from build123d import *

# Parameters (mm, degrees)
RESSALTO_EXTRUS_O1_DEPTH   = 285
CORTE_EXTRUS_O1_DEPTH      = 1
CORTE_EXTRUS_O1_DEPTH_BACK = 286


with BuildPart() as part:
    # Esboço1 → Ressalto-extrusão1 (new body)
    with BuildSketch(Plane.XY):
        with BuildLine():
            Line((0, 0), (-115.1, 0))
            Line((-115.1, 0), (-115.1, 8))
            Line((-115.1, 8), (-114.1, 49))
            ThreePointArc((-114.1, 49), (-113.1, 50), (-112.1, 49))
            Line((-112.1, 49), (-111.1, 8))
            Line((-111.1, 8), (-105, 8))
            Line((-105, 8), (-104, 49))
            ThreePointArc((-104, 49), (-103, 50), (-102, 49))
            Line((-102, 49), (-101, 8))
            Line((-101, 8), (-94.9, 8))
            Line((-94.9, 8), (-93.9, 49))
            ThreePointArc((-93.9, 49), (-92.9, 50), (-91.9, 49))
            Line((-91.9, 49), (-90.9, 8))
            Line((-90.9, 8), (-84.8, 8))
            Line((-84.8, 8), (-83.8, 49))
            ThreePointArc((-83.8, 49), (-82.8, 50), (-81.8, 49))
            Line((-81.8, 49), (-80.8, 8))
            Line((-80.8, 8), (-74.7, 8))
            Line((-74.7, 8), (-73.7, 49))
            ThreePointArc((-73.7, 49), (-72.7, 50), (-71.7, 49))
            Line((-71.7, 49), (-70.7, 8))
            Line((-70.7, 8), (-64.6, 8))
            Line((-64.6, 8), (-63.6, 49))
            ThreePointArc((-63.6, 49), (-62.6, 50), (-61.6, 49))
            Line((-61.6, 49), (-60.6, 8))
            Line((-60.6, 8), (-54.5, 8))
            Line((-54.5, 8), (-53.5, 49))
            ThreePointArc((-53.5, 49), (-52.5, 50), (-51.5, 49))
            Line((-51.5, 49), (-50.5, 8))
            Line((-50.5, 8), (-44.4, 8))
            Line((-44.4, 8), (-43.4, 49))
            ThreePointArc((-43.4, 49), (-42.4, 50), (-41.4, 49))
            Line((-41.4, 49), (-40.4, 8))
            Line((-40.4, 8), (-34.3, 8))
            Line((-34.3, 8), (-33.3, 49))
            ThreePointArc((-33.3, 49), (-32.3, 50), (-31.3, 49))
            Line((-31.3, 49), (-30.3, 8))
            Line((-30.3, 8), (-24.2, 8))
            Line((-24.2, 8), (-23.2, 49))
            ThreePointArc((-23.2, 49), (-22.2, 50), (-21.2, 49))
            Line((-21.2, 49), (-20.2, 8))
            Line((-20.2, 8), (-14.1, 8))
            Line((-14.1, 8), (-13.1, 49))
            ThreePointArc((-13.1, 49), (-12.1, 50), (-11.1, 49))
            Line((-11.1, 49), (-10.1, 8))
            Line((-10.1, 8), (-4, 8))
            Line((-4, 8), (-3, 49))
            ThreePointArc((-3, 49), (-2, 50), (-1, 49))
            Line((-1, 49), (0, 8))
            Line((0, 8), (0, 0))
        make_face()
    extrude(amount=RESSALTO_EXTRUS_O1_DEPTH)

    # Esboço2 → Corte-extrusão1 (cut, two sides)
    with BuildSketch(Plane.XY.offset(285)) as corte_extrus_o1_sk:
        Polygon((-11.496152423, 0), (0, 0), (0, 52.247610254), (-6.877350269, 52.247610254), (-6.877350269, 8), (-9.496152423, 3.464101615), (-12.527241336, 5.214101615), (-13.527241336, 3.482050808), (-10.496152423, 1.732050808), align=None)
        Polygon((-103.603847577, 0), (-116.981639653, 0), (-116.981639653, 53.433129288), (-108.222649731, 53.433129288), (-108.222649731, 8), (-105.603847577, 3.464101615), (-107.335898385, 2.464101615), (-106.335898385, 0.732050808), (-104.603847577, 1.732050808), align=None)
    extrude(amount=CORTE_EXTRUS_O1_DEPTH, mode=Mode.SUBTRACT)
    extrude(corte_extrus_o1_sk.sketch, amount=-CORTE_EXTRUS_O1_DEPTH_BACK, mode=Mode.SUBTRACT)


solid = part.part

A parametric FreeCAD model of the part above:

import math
import FreeCAD as App
import Part
import Sketcher
from FreeCAD import Vector
Q = App.Units.Quantity


def add_polygon(sketch, points):
    """Adds a closed chain of lines whose ends are joined by coincident constraints."""
    first, n = sketch.GeometryCount, len(points)
    for a, b in zip(points, points[1:] + points[:1]):
        sketch.addGeometry(Part.LineSegment(App.Vector(*a, 0), App.Vector(*b, 0)), False)
    for i in range(n):
        sketch.addConstraint(Sketcher.Constraint("Coincident", first + i, 2, first + (i + 1) % n, 1))

doc = App.newDocument("Part")
body = doc.addObject("PartDesign::Body", "Body")

sketch1 = body.newObject("Sketcher::SketchObject", "Sketch")
sketch1.AttachmentSupport = (doc.getObject("XY_Plane"), [""])
sketch1.MapMode = "FlatFace"
sketch1.addGeometry([
    Part.LineSegment(Vector(-115.1, 0, 0), Vector(0, 0, 0)),
    Part.LineSegment(Vector(0, 0, 0), Vector(0, 8, 0)),
    Part.LineSegment(Vector(0, 8, 0), Vector(-1, 49, 0)),
    Part.ArcOfCircle(Part.Circle(Vector(-2, 49, 0), Vector(0, 0, 1), 1), math.radians(0), math.radians(180)),
    Part.LineSegment(Vector(-3, 49, 0), Vector(-4, 8, 0)),
    Part.LineSegment(Vector(-4, 8, 0), Vector(-10.1, 8, 0)),
    Part.LineSegment(Vector(-10.1, 8, 0), Vector(-11.1, 49, 0)),
    Part.ArcOfCircle(Part.Circle(Vector(-12.1, 49, 0), Vector(0, 0, 1), 1), math.radians(0), math.radians(180)),
    Part.LineSegment(Vector(-13.1, 49, 0), Vector(-14.1, 8, 0)),
    Part.LineSegment(Vector(-14.1, 8, 0), Vector(-20.2, 8, 0)),
    Part.LineSegment(Vector(-20.2, 8, 0), Vector(-21.2, 49, 0)),
    Part.ArcOfCircle(Part.Circle(Vector(-22.2, 49, 0), Vector(0, 0, 1), 1), math.radians(0), math.radians(180)),
    Part.LineSegment(Vector(-23.2, 49, 0), Vector(-24.2, 8, 0)),
    Part.LineSegment(Vector(-24.2, 8, 0), Vector(-30.3, 8, 0)),
    Part.LineSegment(Vector(-30.3, 8, 0), Vector(-31.3, 49, 0)),
    Part.ArcOfCircle(Part.Circle(Vector(-32.3, 49, 0), Vector(0, 0, 1), 1), math.radians(0), math.radians(180)),
    Part.LineSegment(Vector(-33.3, 49, 0), Vector(-34.3, 8, 0)),
    Part.LineSegment(Vector(-34.3, 8, 0), Vector(-40.4, 8, 0)),
    Part.LineSegment(Vector(-40.4, 8, 0), Vector(-41.4, 49, 0)),
    Part.ArcOfCircle(Part.Circle(Vector(-42.4, 49, 0), Vector(0, 0, 1), 1), math.radians(0), math.radians(180)),
    Part.LineSegment(Vector(-43.4, 49, 0), Vector(-44.4, 8, 0)),
    Part.LineSegment(Vector(-44.4, 8, 0), Vector(-50.5, 8, 0)),
    Part.LineSegment(Vector(-50.5, 8, 0), Vector(-51.5, 49, 0)),
    Part.ArcOfCircle(Part.Circle(Vector(-52.5, 49, 0), Vector(0, 0, 1), 1), math.radians(0), math.radians(180)),
    Part.LineSegment(Vector(-53.5, 49, 0), Vector(-54.5, 8, 0)),
    Part.LineSegment(Vector(-54.5, 8, 0), Vector(-60.6, 8, 0)),
    Part.LineSegment(Vector(-60.6, 8, 0), Vector(-61.6, 49, 0)),
    Part.ArcOfCircle(Part.Circle(Vector(-62.6, 49, 0), Vector(0, 0, 1), 1), math.radians(0), math.radians(180)),
    Part.LineSegment(Vector(-63.6, 49, 0), Vector(-64.6, 8, 0)),
    Part.LineSegment(Vector(-64.6, 8, 0), Vector(-70.7, 8, 0)),
    Part.LineSegment(Vector(-70.7, 8, 0), Vector(-71.7, 49, 0)),
    Part.ArcOfCircle(Part.Circle(Vector(-72.7, 49, 0), Vector(0, 0, 1), 1), math.radians(0), math.radians(180)),
    Part.LineSegment(Vector(-73.7, 49, 0), Vector(-74.7, 8, 0)),
    Part.LineSegment(Vector(-74.7, 8, 0), Vector(-80.8, 8, 0)),
    Part.LineSegment(Vector(-80.8, 8, 0), Vector(-81.8, 49, 0)),
    Part.ArcOfCircle(Part.Circle(Vector(-82.8, 49, 0), Vector(0, 0, 1), 1), math.radians(0), math.radians(180)),
    Part.LineSegment(Vector(-83.8, 49, 0), Vector(-84.8, 8, 0)),
    Part.LineSegment(Vector(-84.8, 8, 0), Vector(-90.9, 8, 0)),
    Part.LineSegment(Vector(-90.9, 8, 0), Vector(-91.9, 49, 0)),
    Part.ArcOfCircle(Part.Circle(Vector(-92.9, 49, 0), Vector(0, 0, 1), 1), math.radians(0), math.radians(180)),
    Part.LineSegment(Vector(-93.9, 49, 0), Vector(-94.9, 8, 0)),
    Part.LineSegment(Vector(-94.9, 8, 0), Vector(-101, 8, 0)),
    Part.LineSegment(Vector(-101, 8, 0), Vector(-102, 49, 0)),
    Part.ArcOfCircle(Part.Circle(Vector(-103, 49, 0), Vector(0, 0, 1), 1), math.radians(0), math.radians(180)),
    Part.LineSegment(Vector(-104, 49, 0), Vector(-105, 8, 0)),
    Part.LineSegment(Vector(-105, 8, 0), Vector(-111.1, 8, 0)),
    Part.LineSegment(Vector(-111.1, 8, 0), Vector(-112.1, 49, 0)),
    Part.ArcOfCircle(Part.Circle(Vector(-113.1, 49, 0), Vector(0, 0, 1), 1), math.radians(0), math.radians(180)),
    Part.LineSegment(Vector(-114.1, 49, 0), Vector(-115.1, 8, 0)),
    Part.LineSegment(Vector(-115.1, 8, 0), Vector(-115.1, 0, 0)),
], False)
sketch1.addConstraint([
    Sketcher.Constraint("Coincident", 0, 2, 1, 1),
    Sketcher.Constraint("Coincident", 1, 2, 2, 1),
    Sketcher.Constraint("Coincident", 2, 2, 3, 1),
    Sketcher.Constraint("Coincident", 3, 2, 4, 1),
    Sketcher.Constraint("Coincident", 4, 2, 5, 1),
    Sketcher.Constraint("Coincident", 5, 2, 6, 1),
    Sketcher.Constraint("Coincident", 6, 2, 7, 1),
    Sketcher.Constraint("Coincident", 7, 2, 8, 1),
    Sketcher.Constraint("Coincident", 8, 2, 9, 1),
    Sketcher.Constraint("Coincident", 9, 2, 10, 1),
    Sketcher.Constraint("Coincident", 10, 2, 11, 1),
    Sketcher.Constraint("Coincident", 11, 2, 12, 1),
    Sketcher.Constraint("Coincident", 12, 2, 13, 1),
    Sketcher.Constraint("Coincident", 13, 2, 14, 1),
    Sketcher.Constraint("Coincident", 14, 2, 15, 1),
    Sketcher.Constraint("Coincident", 15, 2, 16, 1),
    Sketcher.Constraint("Coincident", 16, 2, 17, 1),
    Sketcher.Constraint("Coincident", 17, 2, 18, 1),
    Sketcher.Constraint("Coincident", 18, 2, 19, 1),
    Sketcher.Constraint("Coincident", 19, 2, 20, 1),
    Sketcher.Constraint("Coincident", 20, 2, 21, 1),
    Sketcher.Constraint("Coincident", 21, 2, 22, 1),
    Sketcher.Constraint("Coincident", 22, 2, 23, 1),
    Sketcher.Constraint("Coincident", 23, 2, 24, 1),
    Sketcher.Constraint("Coincident", 24, 2, 25, 1),
    Sketcher.Constraint("Coincident", 25, 2, 26, 1),
    Sketcher.Constraint("Coincident", 26, 2, 27, 1),
    Sketcher.Constraint("Coincident", 27, 2, 28, 1),
    Sketcher.Constraint("Coincident", 28, 2, 29, 1),
    Sketcher.Constraint("Coincident", 29, 2, 30, 1),
    Sketcher.Constraint("Coincident", 30, 2, 31, 1),
    Sketcher.Constraint("Coincident", 31, 2, 32, 1),
    Sketcher.Constraint("Coincident", 32, 2, 33, 1),
    Sketcher.Constraint("Coincident", 33, 2, 34, 1),
    Sketcher.Constraint("Coincident", 34, 2, 35, 1),
    Sketcher.Constraint("Coincident", 35, 2, 36, 1),
    Sketcher.Constraint("Coincident", 36, 2, 37, 1),
    Sketcher.Constraint("Coincident", 37, 2, 38, 1),
    Sketcher.Constraint("Coincident", 38, 2, 39, 1),
    Sketcher.Constraint("Coincident", 39, 2, 40, 1),
    Sketcher.Constraint("Coincident", 40, 2, 41, 1),
    Sketcher.Constraint("Coincident", 41, 2, 42, 1),
    Sketcher.Constraint("Coincident", 42, 2, 43, 1),
    Sketcher.Constraint("Coincident", 43, 2, 44, 1),
    Sketcher.Constraint("Coincident", 44, 2, 45, 1),
    Sketcher.Constraint("Coincident", 45, 2, 46, 1),
    Sketcher.Constraint("Coincident", 46, 2, 47, 1),
    Sketcher.Constraint("Coincident", 47, 2, 48, 1),
    Sketcher.Constraint("Coincident", 48, 2, 49, 1),
    Sketcher.Constraint("Coincident", 49, 2, 0, 1),
    Sketcher.Constraint("Horizontal", 0),
    Sketcher.Constraint("Vertical", 1),
    Sketcher.Constraint("Horizontal", 5),
    Sketcher.Constraint("Horizontal", 9),
    Sketcher.Constraint("Horizontal", 13),
    Sketcher.Constraint("Horizontal", 17),
    Sketcher.Constraint("Horizontal", 21),
    Sketcher.Constraint("Horizontal", 25),
    Sketcher.Constraint("Horizontal", 29),
    Sketcher.Constraint("Horizontal", 33),
    Sketcher.Constraint("Horizontal", 37),
    Sketcher.Constraint("Horizontal", 41),
    Sketcher.Constraint("Horizontal", 45),
    Sketcher.Constraint("Vertical", 49),
    Sketcher.Constraint("Coincident", 0, 2, -1, 1),
    Sketcher.Constraint("Equal", 3, 7),
    Sketcher.Constraint("Equal", 7, 11),
    Sketcher.Constraint("Equal", 11, 15),
    Sketcher.Constraint("Equal", 15, 19),
    Sketcher.Constraint("Equal", 19, 23),
    Sketcher.Constraint("Equal", 23, 27),
    Sketcher.Constraint("Equal", 27, 31),
    Sketcher.Constraint("Equal", 31, 35),
    Sketcher.Constraint("Equal", 35, 39),
    Sketcher.Constraint("Equal", 39, 43),
    Sketcher.Constraint("Equal", 43, 47),
    Sketcher.Constraint("Parallel", 2, 6),
    Sketcher.Constraint("Parallel", 4, 8),
    Sketcher.Constraint("Parallel", 6, 10),
    Sketcher.Constraint("Parallel", 8, 12),
    Sketcher.Constraint("Parallel", 10, 14),
    Sketcher.Constraint("Parallel", 12, 16),
    Sketcher.Constraint("Parallel", 14, 18),
    Sketcher.Constraint("Parallel", 16, 20),
    Sketcher.Constraint("Parallel", 18, 22),
    Sketcher.Constraint("Parallel", 20, 24),
    Sketcher.Constraint("Parallel", 22, 26),
    Sketcher.Constraint("Parallel", 24, 28),
    Sketcher.Constraint("Parallel", 26, 30),
    Sketcher.Constraint("Parallel", 28, 32),
    Sketcher.Constraint("Parallel", 30, 34),
    Sketcher.Constraint("Parallel", 32, 36),
    Sketcher.Constraint("Parallel", 34, 38),
    Sketcher.Constraint("Parallel", 36, 40),
    Sketcher.Constraint("Parallel", 38, 42),
    Sketcher.Constraint("Parallel", 40, 44),
    Sketcher.Constraint("Parallel", 42, 46),
    Sketcher.Constraint("Parallel", 44, 48),
    Sketcher.Constraint("Horizontal", 3, 3, 7, 3),
    Sketcher.Constraint("Horizontal", 7, 3, 11, 3),
    Sketcher.Constraint("Horizontal", 11, 3, 15, 3),
    Sketcher.Constraint("Horizontal", 15, 3, 19, 3),
    Sketcher.Constraint("Horizontal", 19, 3, 23, 3),
    Sketcher.Constraint("Horizontal", 23, 3, 27, 3),
    Sketcher.Constraint("Horizontal", 27, 3, 31, 3),
    Sketcher.Constraint("Horizontal", 31, 3, 35, 3),
    Sketcher.Constraint("Horizontal", 35, 3, 39, 3),
    Sketcher.Constraint("Horizontal", 39, 3, 43, 3),
    Sketcher.Constraint("Horizontal", 43, 3, 47, 3),
    Sketcher.Constraint("Horizontal", 47, 3, 2, 2),
    Sketcher.Constraint("Horizontal", 2, 2, 3, 2),
    Sketcher.Constraint("Horizontal", 1, 2, 4, 2),
    Sketcher.Constraint("Horizontal", 3, 2, 6, 2),
    Sketcher.Constraint("Horizontal", 6, 2, 7, 2),
    Sketcher.Constraint("Horizontal", 5, 2, 8, 2),
    Sketcher.Constraint("Horizontal", 7, 2, 10, 2),
    Sketcher.Constraint("Horizontal", 10, 2, 11, 2),
    Sketcher.Constraint("Horizontal", 9, 2, 12, 2),
    Sketcher.Constraint("Horizontal", 11, 2, 14, 2),
    Sketcher.Constraint("Horizontal", 14, 2, 15, 2),
    Sketcher.Constraint("Horizontal", 13, 2, 16, 2),
    Sketcher.Constraint("Horizontal", 15, 2, 18, 2),
    Sketcher.Constraint("Horizontal", 18, 2, 19, 2),
    Sketcher.Constraint("Horizontal", 17, 2, 20, 2),
    Sketcher.Constraint("Horizontal", 19, 2, 22, 2),
    Sketcher.Constraint("Horizontal", 22, 2, 23, 2),
    Sketcher.Constraint("Horizontal", 21, 2, 24, 2),
    Sketcher.Constraint("Horizontal", 23, 2, 26, 2),
    Sketcher.Constraint("Horizontal", 26, 2, 27, 2),
    Sketcher.Constraint("Horizontal", 25, 2, 28, 2),
    Sketcher.Constraint("Horizontal", 27, 2, 30, 2),
    Sketcher.Constraint("Horizontal", 30, 2, 31, 2),
    Sketcher.Constraint("Horizontal", 29, 2, 32, 2),
    Sketcher.Constraint("Horizontal", 31, 2, 34, 2),
    Sketcher.Constraint("Horizontal", 34, 2, 35, 2),
    Sketcher.Constraint("Horizontal", 33, 2, 36, 2),
    Sketcher.Constraint("Horizontal", 35, 2, 38, 2),
    Sketcher.Constraint("Horizontal", 38, 2, 39, 2),
    Sketcher.Constraint("Horizontal", 37, 2, 40, 2),
    Sketcher.Constraint("Horizontal", 39, 2, 42, 2),
    Sketcher.Constraint("Horizontal", 42, 2, 43, 2),
    Sketcher.Constraint("Horizontal", 41, 2, 44, 2),
    Sketcher.Constraint("Horizontal", 43, 2, 46, 2),
    Sketcher.Constraint("Horizontal", 46, 2, 47, 2),
    Sketcher.Constraint("Horizontal", 45, 2, 48, 2),
    Sketcher.Constraint("Equal", 5, 9),
    Sketcher.Constraint("Equal", 9, 13),
    Sketcher.Constraint("Equal", 13, 17),
    Sketcher.Constraint("Equal", 17, 21),
    Sketcher.Constraint("Equal", 21, 25),
    Sketcher.Constraint("Equal", 25, 29),
    Sketcher.Constraint("Equal", 29, 33),
    Sketcher.Constraint("Equal", 33, 37),
    Sketcher.Constraint("Equal", 37, 41),
    Sketcher.Constraint("Equal", 41, 45),
    Sketcher.Constraint("Equal", 2, 4),
    Sketcher.Constraint("Radius", 3, Q("1 mm")),
    Sketcher.Constraint("DistanceY", 1, 1, 1, 2, Q("8 mm")),
    Sketcher.Constraint("DistanceX", 0, 1, 0, 2, Q("115.1 mm")),
    Sketcher.Constraint("DistanceX", 5, 2, 5, 1, Q("6.1 mm")),
    Sketcher.Constraint("DistanceY", -1, 1, 3, 3, Q("49 mm")),
])
pad1 = body.newObject("PartDesign::Pad", "Pad")
pad1.Profile = sketch1
pad1.Length = 285

sketch2 = body.newObject("Sketcher::SketchObject", "Sketch001")
sketch2.AttachmentSupport = (doc.getObject("XY_Plane"), [""])
sketch2.MapMode = "FlatFace"
sketch2.AttachmentOffset = App.Placement(Vector(0, 0, 285), App.Rotation())
add_polygon(sketch2, [(-11.5, 0), (0, 0), (0, 52.2), (-6.9, 52.2), (-6.9, 8), (-9.5, 3.5), (-12.5, 5.2), (-13.5, 3.5), (-10.5, 1.7)])
add_polygon(sketch2, [(-117, 0), (-103.6, 0), (-104.6, 1.7), (-106.3, 0.7), (-107.3, 2.5), (-105.6, 3.5), (-108.2, 8), (-108.2, 53.4), (-117, 53.4)])
sketch2.addConstraint([
    Sketcher.Constraint("Horizontal", 0),
    Sketcher.Constraint("Vertical", 1),
    Sketcher.Constraint("Horizontal", 2),
    Sketcher.Constraint("Vertical", 3),
    Sketcher.Constraint("Horizontal", 9),
    Sketcher.Constraint("Vertical", 15),
    Sketcher.Constraint("Horizontal", 16),
    Sketcher.Constraint("Vertical", 17),
    Sketcher.Constraint("Coincident", 0, 2, -1, 1),
    Sketcher.Constraint("PointOnObject", 9, 2, -1),
    Sketcher.Constraint("Perpendicular", 4, 5),
    Sketcher.Constraint("Perpendicular", 5, 6),
    Sketcher.Constraint("Perpendicular", 6, 7),
    Sketcher.Constraint("Perpendicular", 7, 8),
    Sketcher.Constraint("Perpendicular", 10, 11),
    Sketcher.Constraint("Perpendicular", 11, 12),
    Sketcher.Constraint("Perpendicular", 12, 13),
    Sketcher.Constraint("Perpendicular", 13, 14),
    Sketcher.Constraint("Horizontal", 7, 2, 10, 2),
    Sketcher.Constraint("Horizontal", 4, 2, 13, 2),
    Sketcher.Constraint("Horizontal", 3, 2, 14, 2),
    Sketcher.Constraint("Equal", 5, 7),
    Sketcher.Constraint("Equal", 6, 8),
    Sketcher.Constraint("Equal", 8, 10),
    Sketcher.Constraint("Equal", 10, 11),
    Sketcher.Constraint("Equal", 11, 12),
    Sketcher.Constraint("Angle", 4, Q("-120 deg")),
    Sketcher.Constraint("Distance", 6, Q("2 mm")),
    Sketcher.Constraint("DistanceY", -1, 1, 3, 2, Q("8 mm")),
    Sketcher.Constraint("Distance", 5, Q("3.5 mm")),
    Sketcher.Constraint("DistanceX", 2, 2, 2, 1, Q("6.87735 mm")),
    Sketcher.Constraint("DistanceX", 16, 2, 16, 1, Q("8.75899 mm")),
    Sketcher.Constraint("DistanceY", 1, 1, 1, 2, Q("52.24761 mm")),
    Sketcher.Constraint("DistanceY", 15, 1, 15, 2, Q("45.433129 mm")),
    Sketcher.Constraint("DistanceX", 11, 2, -1, 1, Q("106.335898 mm")),
])
pocket1 = body.newObject("PartDesign::Pocket", "Pocket")
pocket1.Profile = sketch2
pocket1.Type = "ThroughAll"
pocket1.Midplane = True

doc.recompute()
